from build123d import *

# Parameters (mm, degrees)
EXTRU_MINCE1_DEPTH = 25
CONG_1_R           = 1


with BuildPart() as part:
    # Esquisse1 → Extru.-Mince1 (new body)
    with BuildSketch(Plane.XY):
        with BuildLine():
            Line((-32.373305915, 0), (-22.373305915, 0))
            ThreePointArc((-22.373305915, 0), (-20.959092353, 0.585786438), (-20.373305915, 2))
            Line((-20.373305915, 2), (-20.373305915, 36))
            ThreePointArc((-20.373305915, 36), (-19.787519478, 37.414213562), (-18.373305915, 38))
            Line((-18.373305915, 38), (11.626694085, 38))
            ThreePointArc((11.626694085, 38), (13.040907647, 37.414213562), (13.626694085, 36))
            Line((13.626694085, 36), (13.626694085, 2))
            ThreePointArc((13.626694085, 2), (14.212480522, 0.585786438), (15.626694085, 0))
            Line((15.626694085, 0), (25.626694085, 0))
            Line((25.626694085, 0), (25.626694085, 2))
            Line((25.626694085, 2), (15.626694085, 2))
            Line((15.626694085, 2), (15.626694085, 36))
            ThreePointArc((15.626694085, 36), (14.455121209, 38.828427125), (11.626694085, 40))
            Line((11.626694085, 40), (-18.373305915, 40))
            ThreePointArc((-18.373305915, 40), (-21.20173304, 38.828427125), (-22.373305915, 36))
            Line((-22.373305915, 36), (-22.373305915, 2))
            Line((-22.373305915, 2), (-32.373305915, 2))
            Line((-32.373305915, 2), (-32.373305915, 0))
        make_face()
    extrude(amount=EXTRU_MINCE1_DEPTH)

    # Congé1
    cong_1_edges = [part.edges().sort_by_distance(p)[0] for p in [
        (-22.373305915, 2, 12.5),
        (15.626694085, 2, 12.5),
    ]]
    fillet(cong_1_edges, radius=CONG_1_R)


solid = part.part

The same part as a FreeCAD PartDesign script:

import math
import FreeCAD as App
import Part
import Sketcher

V = App.Vector
Q = App.Units.Quantity


def edges_at(feature, points):
    """Names of the edges that pass closest to the given points."""
    edges = feature.Shape.Edges
    near = lambda p: min(range(len(edges)), key=lambda i: edges[i].distToShape(Part.Vertex(*p))[0])
    return sorted({f"Edge{near(p) + 1}" for p in points})

doc = App.newDocument("Part")
body = doc.addObject("PartDesign::Body", "Body")

# Sketch on XY plane
sketch1 = body.newObject("Sketcher::SketchObject", "Sketch")
sketch1.AttachmentSupport = (doc.getObject("XY_Plane"), [""])
sketch1.MapMode = "FlatFace"
sketch1.addGeometry(Part.LineSegment(V(-32.4, 0, 0), V(-22.4, 0, 0)), False)
sketch1.addGeometry(Part.ArcOfCircle(Part.Circle(V(-22.4, 2, 0), V(0, 0, 1), 2), math.radians(-90), math.radians(0)), False)
sketch1.addGeometry(Part.LineSegment(V(-20.4, 2, 0), V(-20.4, 36, 0)), False)
sketch1.addGeometry(Part.ArcOfCircle(Part.Circle(V(-18.4, 36, 0), V(0, 0, 1), 2), math.radians(90), math.radians(180)), False)
sketch1.addGeometry(Part.LineSegment(V(-18.4, 38, 0), V(11.6, 38, 0)), False)
sketch1.addGeometry(Part.ArcOfCircle(Part.Circle(V(11.6, 36, 0), V(0, 0, 1), 2), math.radians(0), math.radians(90)), False)
sketch1.addGeometry(Part.LineSegment(V(13.6, 36, 0), V(13.6, 2, 0)), False)
sketch1.addGeometry(Part.ArcOfCircle(Part.Circle(V(15.6, 2, 0), V(0, 0, 1), 2), math.radians(180), math.radians(270)), False)
sketch1.addGeometry(Part.LineSegment(V(15.6, 0, 0), V(25.6, 0, 0)), False)
sketch1.addGeometry(Part.LineSegment(V(25.6, 0, 0), V(25.6, 2, 0)), False)
sketch1.addGeometry(Part.LineSegment(V(25.6, 2, 0), V(15.6, 2, 0)), False)
sketch1.addGeometry(Part.LineSegment(V(15.6, 2, 0), V(15.6, 36, 0)), False)
sketch1.addGeometry(Part.ArcOfCircle(Part.Circle(V(11.6, 36, 0), V(0, 0, 1), 4), math.radians(0), math.radians(90)), False)
sketch1.addGeometry(Part.LineSegment(V(11.6, 40, 0), V(-18.4, 40, 0)), False)
sketch1.addGeometry(Part.ArcOfCircle(Part.Circle(V(-18.4, 36, 0), V(0, 0, 1), 4), math.radians(90), math.radians(180)), False)
sketch1.addGeometry(Part.LineSegment(V(-22.4, 36, 0), V(-22.4, 2, 0)), False)
sketch1.addGeometry(Part.LineSegment(V(-22.4, 2, 0), V(-32.4, 2, 0)), False)
sketch1.addGeometry(Part.LineSegment(V(-32.4, 2, 0), V(-32.4, 0, 0)), False)
sketch1.addConstraint(Sketcher.Constraint("Tangent", 0, 2, 1, 1))
sketch1.addConstraint(Sketcher.Constraint("Tangent", 1, 2, 2, 1))
sketch1.addConstraint(Sketcher.Constraint("Tangent", 2, 2, 3, 2))
sketch1.addConstraint(Sketcher.Constraint("Tangent", 3, 1, 4, 1))
sketch1.addConstraint(Sketcher.Constraint("Tangent", 4, 2, 5, 2))
sketch1.addConstraint(Sketcher.Constraint("Tangent", 5, 1, 6, 1))
sketch1.addConstraint(Sketcher.Constraint("Tangent", 6, 2, 7, 1))
sketch1.addConstraint(Sketcher.Constraint("Tangent", 7, 2, 8, 1))
sketch1.addConstraint(Sketcher.Constraint("Coincident", 8, 2, 9, 1))
sketch1.addConstraint(Sketcher.Constraint("Coincident", 9, 2, 10, 1))
sketch1.addConstraint(Sketcher.Constraint("Coincident", 10, 2, 11, 1))
sketch1.addConstraint(Sketcher.Constraint("Tangent", 11, 2, 12, 1))
sketch1.addConstraint(Sketcher.Constraint("Tangent", 12, 2, 13, 1))
sketch1.addConstraint(Sketcher.Constraint("Tangent", 13, 2, 14, 1))
sketch1.addConstraint(Sketcher.Constraint("Tangent", 14, 2, 15, 1))
sketch1.addConstraint(Sketcher.Constraint("Coincident", 15, 2, 16, 1))
sketch1.addConstraint(Sketcher.Constraint("Coincident", 16, 2, 17, 1))
sketch1.addConstraint(Sketcher.Constraint("Coincident", 17, 2, 0, 1))
sketch1.addConstraint(Sketcher.Constraint("Horizontal", 0))
sketch1.addConstraint(Sketcher.Constraint("Vertical", 2))
sketch1.addConstraint(Sketcher.Constraint("Horizontal", 4))
sketch1.addConstraint(Sketcher.Constraint("Vertical", 6))
sketch1.addConstraint(Sketcher.Constraint("Horizontal", 8))
sketch1.addConstraint(Sketcher.Constraint("Vertical", 9))
sketch1.addConstraint(Sketcher.Constraint("Horizontal", 10))
sketch1.addConstraint(Sketcher.Constraint("Vertical", 11))
sketch1.addConstraint(Sketcher.Constraint("Horizontal", 13))
sketch1.addConstraint(Sketcher.Constraint("Vertical", 15))
sketch1.addConstraint(Sketcher.Constraint("Horizontal", 16))
sketch1.addConstraint(Sketcher.Constraint("Vertical", 17))
sketch1.addConstraint(Sketcher.Constraint("Coincident", 12, 3, 5, 3))
sketch1.addConstraint(Sketcher.Constraint("Coincident", 14, 3, 3, 3))
sketch1.addConstraint(Sketcher.Constraint("Coincident", 10, 2, 7, 3))
sketch1.addConstraint(Sketcher.Constraint("Coincident", 15, 2, 1, 3))
sketch1.addConstraint(Sketcher.Constraint("Equal", 1, 3))
sketch1.addConstraint(Sketcher.Constraint("Equal", 3, 5))
sketch1.addConstraint(Sketcher.Constraint("PointOnObject", 0, 2, -1))
sketch1.addConstraint(Sketcher.Constraint("PointOnObject", 7, 2, -1))
sketch1.addConstraint(Sketcher.Constraint("Equal", 0, 8))
sketch1.addConstraint(Sketcher.Constraint("Radius", 1, Q("2 mm")))
sketch1.addConstraint(Sketcher.Constraint("DistanceX", 0, 1, 0, 2, Q("10 mm")))
sketch1.addConstraint(Sketcher.Constraint("DistanceX", 4, 1, 4, 2, Q("30 mm")))
sketch1.addConstraint(Sketcher.Constraint("DistanceY", 2, 1, 2, 2, Q("34 mm")))
sketch1.addConstraint(Sketcher.Constraint("DistanceX", 1, 3, -1, 1, Q("22.373306 mm")))
pad1 = body.newObject("PartDesign::Pad", "Pad")
pad1.Profile = sketch1
pad1.Length = 25
doc.recompute()

fillet = body.newObject("PartDesign::Fillet", "Fillet")
fillet.Base = (pad1, edges_at(pad1, [(-22.373, 2, 12.5), (15.627, 2, 12.5)]))
fillet.Radius = 1

doc.recompute()
